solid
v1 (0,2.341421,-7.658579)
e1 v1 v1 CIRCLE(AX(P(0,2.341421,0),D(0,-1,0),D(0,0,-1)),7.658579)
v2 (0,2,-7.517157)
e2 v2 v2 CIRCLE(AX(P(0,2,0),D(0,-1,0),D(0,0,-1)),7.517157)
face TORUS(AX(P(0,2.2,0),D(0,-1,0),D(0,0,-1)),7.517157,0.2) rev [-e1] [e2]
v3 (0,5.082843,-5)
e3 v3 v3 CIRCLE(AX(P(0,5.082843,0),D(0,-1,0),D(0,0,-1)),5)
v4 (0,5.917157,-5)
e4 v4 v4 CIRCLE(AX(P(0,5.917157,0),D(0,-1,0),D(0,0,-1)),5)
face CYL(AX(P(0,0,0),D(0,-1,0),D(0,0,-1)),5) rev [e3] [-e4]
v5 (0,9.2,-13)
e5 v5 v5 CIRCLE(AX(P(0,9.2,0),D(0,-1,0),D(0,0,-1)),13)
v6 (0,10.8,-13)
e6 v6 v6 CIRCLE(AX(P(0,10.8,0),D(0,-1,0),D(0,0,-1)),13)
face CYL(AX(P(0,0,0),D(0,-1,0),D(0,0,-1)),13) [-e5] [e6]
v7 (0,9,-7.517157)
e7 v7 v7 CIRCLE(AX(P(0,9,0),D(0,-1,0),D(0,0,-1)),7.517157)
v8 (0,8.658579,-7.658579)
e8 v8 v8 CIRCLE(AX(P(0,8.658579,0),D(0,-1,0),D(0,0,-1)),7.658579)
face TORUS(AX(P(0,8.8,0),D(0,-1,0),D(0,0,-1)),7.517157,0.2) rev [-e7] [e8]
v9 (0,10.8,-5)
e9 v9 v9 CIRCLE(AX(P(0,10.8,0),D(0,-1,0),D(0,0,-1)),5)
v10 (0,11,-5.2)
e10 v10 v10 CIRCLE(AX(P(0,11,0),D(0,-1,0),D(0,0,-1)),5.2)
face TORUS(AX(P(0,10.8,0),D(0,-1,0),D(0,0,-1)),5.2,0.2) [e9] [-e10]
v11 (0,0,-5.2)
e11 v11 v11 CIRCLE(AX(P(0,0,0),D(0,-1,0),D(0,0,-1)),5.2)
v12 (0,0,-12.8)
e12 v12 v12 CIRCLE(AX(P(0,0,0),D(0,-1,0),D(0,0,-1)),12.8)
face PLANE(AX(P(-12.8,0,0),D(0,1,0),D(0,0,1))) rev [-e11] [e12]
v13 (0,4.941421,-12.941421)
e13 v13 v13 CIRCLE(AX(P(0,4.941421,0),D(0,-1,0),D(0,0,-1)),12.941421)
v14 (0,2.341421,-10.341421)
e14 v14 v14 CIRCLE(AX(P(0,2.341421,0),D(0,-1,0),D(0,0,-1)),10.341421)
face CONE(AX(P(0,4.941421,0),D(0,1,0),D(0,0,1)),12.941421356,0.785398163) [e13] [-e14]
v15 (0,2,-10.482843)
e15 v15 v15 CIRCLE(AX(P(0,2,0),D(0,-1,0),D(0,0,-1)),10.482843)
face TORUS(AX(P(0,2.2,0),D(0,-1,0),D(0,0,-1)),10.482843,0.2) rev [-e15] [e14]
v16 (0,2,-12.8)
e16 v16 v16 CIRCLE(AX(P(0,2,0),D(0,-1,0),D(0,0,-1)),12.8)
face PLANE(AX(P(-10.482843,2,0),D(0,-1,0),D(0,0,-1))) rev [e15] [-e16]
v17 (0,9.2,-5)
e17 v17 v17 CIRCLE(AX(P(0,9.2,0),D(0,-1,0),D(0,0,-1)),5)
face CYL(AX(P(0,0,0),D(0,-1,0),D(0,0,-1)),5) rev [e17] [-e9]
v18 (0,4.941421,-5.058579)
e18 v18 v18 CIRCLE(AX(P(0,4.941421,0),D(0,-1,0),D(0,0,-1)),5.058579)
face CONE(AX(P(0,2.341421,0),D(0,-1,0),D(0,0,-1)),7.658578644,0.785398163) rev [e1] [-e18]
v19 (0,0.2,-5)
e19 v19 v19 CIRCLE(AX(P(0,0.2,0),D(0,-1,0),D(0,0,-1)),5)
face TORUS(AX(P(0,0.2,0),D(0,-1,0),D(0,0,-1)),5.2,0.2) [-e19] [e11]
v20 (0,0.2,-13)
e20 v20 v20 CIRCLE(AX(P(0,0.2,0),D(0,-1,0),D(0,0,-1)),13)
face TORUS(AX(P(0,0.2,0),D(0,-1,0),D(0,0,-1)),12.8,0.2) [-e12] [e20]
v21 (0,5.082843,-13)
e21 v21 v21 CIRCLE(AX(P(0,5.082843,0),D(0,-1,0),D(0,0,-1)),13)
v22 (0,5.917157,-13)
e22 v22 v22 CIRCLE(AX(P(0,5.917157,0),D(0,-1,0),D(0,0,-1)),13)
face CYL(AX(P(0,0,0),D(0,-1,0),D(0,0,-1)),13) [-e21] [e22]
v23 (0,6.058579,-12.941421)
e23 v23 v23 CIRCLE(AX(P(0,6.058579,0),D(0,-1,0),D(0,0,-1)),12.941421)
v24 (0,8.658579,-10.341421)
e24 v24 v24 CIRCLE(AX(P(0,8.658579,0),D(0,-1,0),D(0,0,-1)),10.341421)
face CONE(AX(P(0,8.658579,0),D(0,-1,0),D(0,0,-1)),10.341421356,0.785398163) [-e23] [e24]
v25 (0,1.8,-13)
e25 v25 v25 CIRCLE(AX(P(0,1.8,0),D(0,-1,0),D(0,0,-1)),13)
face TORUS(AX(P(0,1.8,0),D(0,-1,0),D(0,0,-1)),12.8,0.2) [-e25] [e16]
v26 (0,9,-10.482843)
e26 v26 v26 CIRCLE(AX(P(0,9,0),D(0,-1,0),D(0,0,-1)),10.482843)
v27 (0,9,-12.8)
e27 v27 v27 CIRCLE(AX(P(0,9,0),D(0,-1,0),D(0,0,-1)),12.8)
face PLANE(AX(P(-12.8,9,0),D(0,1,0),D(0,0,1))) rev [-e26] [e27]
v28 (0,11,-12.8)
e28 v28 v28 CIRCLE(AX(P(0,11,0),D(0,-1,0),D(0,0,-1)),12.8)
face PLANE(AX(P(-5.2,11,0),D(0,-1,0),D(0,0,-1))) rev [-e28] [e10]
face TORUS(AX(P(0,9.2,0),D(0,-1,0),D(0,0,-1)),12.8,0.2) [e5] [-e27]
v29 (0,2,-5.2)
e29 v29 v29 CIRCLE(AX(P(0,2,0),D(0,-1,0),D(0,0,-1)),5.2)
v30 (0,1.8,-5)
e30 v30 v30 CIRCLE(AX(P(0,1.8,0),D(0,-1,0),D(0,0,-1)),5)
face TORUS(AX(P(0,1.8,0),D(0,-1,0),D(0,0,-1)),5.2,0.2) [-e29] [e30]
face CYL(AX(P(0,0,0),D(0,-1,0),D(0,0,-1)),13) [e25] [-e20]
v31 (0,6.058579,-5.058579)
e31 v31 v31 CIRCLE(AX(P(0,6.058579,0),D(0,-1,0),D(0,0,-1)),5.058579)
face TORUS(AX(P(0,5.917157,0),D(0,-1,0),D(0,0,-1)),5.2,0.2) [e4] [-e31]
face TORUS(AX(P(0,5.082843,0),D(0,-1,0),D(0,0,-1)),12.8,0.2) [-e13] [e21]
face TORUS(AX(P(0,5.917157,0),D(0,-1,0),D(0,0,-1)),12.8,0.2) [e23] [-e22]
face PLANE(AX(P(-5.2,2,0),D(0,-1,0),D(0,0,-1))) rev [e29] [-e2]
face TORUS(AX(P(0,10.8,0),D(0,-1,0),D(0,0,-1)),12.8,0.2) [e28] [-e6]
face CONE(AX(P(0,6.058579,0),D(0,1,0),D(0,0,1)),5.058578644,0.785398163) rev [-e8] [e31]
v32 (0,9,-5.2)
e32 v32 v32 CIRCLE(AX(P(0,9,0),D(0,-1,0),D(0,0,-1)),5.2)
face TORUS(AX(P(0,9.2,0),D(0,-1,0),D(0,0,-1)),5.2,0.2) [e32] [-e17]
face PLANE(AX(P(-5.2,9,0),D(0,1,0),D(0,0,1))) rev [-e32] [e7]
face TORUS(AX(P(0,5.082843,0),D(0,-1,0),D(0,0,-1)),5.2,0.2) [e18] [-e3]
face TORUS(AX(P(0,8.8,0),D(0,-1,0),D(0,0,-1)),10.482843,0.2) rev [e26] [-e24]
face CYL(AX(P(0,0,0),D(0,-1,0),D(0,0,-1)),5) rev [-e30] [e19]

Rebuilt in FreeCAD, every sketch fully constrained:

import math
import FreeCAD as App
import Part
import Sketcher

V = App.Vector

doc = App.newDocument("Part")
params = doc.addObject("Spreadsheet::Sheet", "Params")
for row, (alias, value) in enumerate([
    ("sketch1_radius", "0.2 mm"),
    ("sketch1_width", "7.6 mm"),
    ("sketch1_height", "1.6 mm"),
    ("revolution_angle", "360 deg"),
], start=1):
    params.set(f"A{row}", alias)
    params.set(f"B{row}", "=" + value)
    params.setAlias(f"B{row}", alias)

body = doc.addObject("PartDesign::Body", "Body")

sketch1 = body.newObject("Sketcher::SketchObject", "Sketch")
sketch1.AttachmentSupport = (doc.getObject("XY_Plane"), [""])
sketch1.MapMode = "FlatFace"
sketch1.addGeometry([
    Part.LineSegment(V(-5, 0.2, 0), V(-5, 1.8, 0)),
    Part.ArcOfCircle(Part.Circle(V(-5.2, 1.8, 0), V(0, 0, 1), 0.2), math.radians(0), math.radians(90)),
    Part.LineSegment(V(-5.2, 2, 0), V(-7.52, 2, 0)),
    Part.ArcOfCircle(Part.Circle(V(-7.52, 2.2, 0), V(0, 0, 1), 0.2), math.radians(135), math.radians(270)),
    Part.LineSegment(V(-7.66, 2.34, 0), V(-5.06, 4.94, 0)),
    Part.ArcOfCircle(Part.Circle(V(-5.2, 5.08, 0), V(0, 0, 1), 0.2), math.radians(-45), math.radians(0)),
    Part.LineSegment(V(-5, 5.08, 0), V(-5, 5.92, 0)),
    Part.ArcOfCircle(Part.Circle(V(-5.2, 5.92, 0), V(0, 0, 1), 0.2), math.radians(0), math.radians(45)),
    Part.LineSegment(V(-5.06, 6.06, 0), V(-7.66, 8.66, 0)),
    Part.ArcOfCircle(Part.Circle(V(-7.52, 8.8, 0), V(0, 0, 1), 0.2), math.radians(90), math.radians(225)),
    Part.LineSegment(V(-7.52, 9, 0), V(-5.2, 9, 0)),
    Part.ArcOfCircle(Part.Circle(V(-5.2, 9.2, 0), V(0, 0, 1), 0.2), math.radians(-90), math.radians(0)),
    Part.LineSegment(V(-5, 9.2, 0), V(-5, 10.8, 0)),
    Part.ArcOfCircle(Part.Circle(V(-5.2, 10.8, 0), V(0, 0, 1), 0.2), math.radians(0), math.radians(90)),
    Part.LineSegment(V(-5.2, 11, 0), V(-12.8, 11, 0)),
    Part.ArcOfCircle(Part.Circle(V(-12.8, 10.8, 0), V(0, 0, 1), 0.2), math.radians(90), math.radians(180)),
    Part.LineSegment(V(-13, 10.8, 0), V(-13, 9.2, 0)),
    Part.ArcOfCircle(Part.Circle(V(-12.8, 9.2, 0), V(0, 0, 1), 0.2), math.radians(-180), math.radians(-90)),
    Part.LineSegment(V(-12.8, 9, 0), V(-10.48, 9, 0)),
    Part.ArcOfCircle(Part.Circle(V(-10.48, 8.8, 0), V(0, 0, 1), 0.2), math.radians(-45), math.radians(90)),
    Part.LineSegment(V(-10.34, 8.66, 0), V(-12.94, 6.06, 0)),
    Part.ArcOfCircle(Part.Circle(V(-12.8, 5.92, 0), V(0, 0, 1), 0.2), math.radians(135), math.radians(180)),
    Part.LineSegment(V(-13, 5.92, 0), V(-13, 5.08, 0)),
    Part.ArcOfCircle(Part.Circle(V(-12.8, 5.08, 0), V(0, 0, 1), 0.2), math.radians(180), math.radians(225)),
    Part.LineSegment(V(-12.94, 4.94, 0), V(-10.34, 2.34, 0)),
    Part.ArcOfCircle(Part.Circle(V(-10.48, 2.2, 0), V(0, 0, 1), 0.2), math.radians(-90), math.radians(45)),
    Part.LineSegment(V(-10.48, 2, 0), V(-12.8, 2, 0)),
    Part.ArcOfCircle(Part.Circle(V(-12.8, 1.8, 0), V(0, 0, 1), 0.2), math.radians(90), math.radians(180)),
    Part.LineSegment(V(-13, 1.8, 0), V(-13, 0.2, 0)),
    Part.ArcOfCircle(Part.Circle(V(-12.8, 0.2, 0), V(0, 0, 1), 0.2), math.radians(-180), math.radians(-90)),
    Part.LineSegment(V(-12.8, 0, 0), V(-5.2, 0, 0)),
    Part.ArcOfCircle(Part.Circle(V(-5.2, 0.2, 0), V(0, 0, 1), 0.2), math.radians(-90), math.radians(0)),
], False)
sketch1.addConstraint([
    Sketcher.Constraint("Tangent", 0, 2, 1, 1),
    Sketcher.Constraint("Tangent", 1, 2, 2, 1),
    Sketcher.Constraint("Tangent", 2, 2, 3, 2),
    Sketcher.Constraint("Tangent", 3, 1, 4, 1),
    Sketcher.Constraint("Tangent", 4, 2, 5, 1),
    Sketcher.Constraint("Tangent", 5, 2, 6, 1),
    Sketcher.Constraint("Tangent", 6, 2, 7, 1),
    Sketcher.Constraint("Tangent", 7, 2, 8, 1),
    Sketcher.Constraint("Tangent", 8, 2, 9, 2),
    Sketcher.Constraint("Tangent", 9, 1, 10, 1),
    Sketcher.Constraint("Tangent", 10, 2, 11, 1),
    Sketcher.Constraint("Tangent", 11, 2, 12, 1),
    Sketcher.Constraint("Tangent", 12, 2, 13, 1),
    Sketcher.Constraint("Tangent", 13, 2, 14, 1),
    Sketcher.Constraint("Tangent", 14, 2, 15, 1),
    Sketcher.Constraint("Tangent", 15, 2, 16, 1),
    Sketcher.Constraint("Tangent", 16, 2, 17, 1),
    Sketcher.Constraint("Tangent", 17, 2, 18, 1),
    Sketcher.Constraint("Tangent", 18, 2, 19, 2),
    Sketcher.Constraint("Tangent", 19, 1, 20, 1),
    Sketcher.Constraint("Tangent", 20, 2, 21, 1),
    Sketcher.Constraint("Tangent", 21, 2, 22, 1),
    Sketcher.Constraint("Tangent", 22, 2, 23, 1),
    Sketcher.Constraint("Tangent", 23, 2, 24, 1),
    Sketcher.Constraint("Tangent", 24, 2, 25, 2),
    Sketcher.Constraint("Tangent", 25, 1, 26, 1),
    Sketcher.Constraint("Tangent", 26, 2, 27, 1),
    Sketcher.Constraint("Tangent", 27, 2, 28, 1),
    Sketcher.Constraint("Tangent", 28, 2, 29, 1),
    Sketcher.Constraint("Tangent", 29, 2, 30, 1),
    Sketcher.Constraint("Tangent", 30, 2, 31, 1),
    Sketcher.Constraint("Tangent", 31, 2, 0, 1),
    Sketcher.Constraint("Vertical", 0),
    Sketcher.Constraint("Horizontal", 2),
    Sketcher.Constraint("Vertical", 6),
    Sketcher.Constraint("Horizontal", 10),
    Sketcher.Constraint("Vertical", 12),
    Sketcher.Constraint("Horizontal", 14),
    Sketcher.Constraint("Vertical", 16),
    Sketcher.Constraint("Horizontal", 18),
    Sketcher.Constraint("Vertical", 22),
    Sketcher.Constraint("Horizontal", 26),
    Sketcher.Constraint("Vertical", 28),
    Sketcher.Constraint("Horizontal", 30),
    Sketcher.Constraint("Equal", 1, 3),
    Sketcher.Constraint("Equal", 3, 5),
    Sketcher.Constraint("Equal", 5, 7),
    Sketcher.Constraint("Equal", 7, 9),
    Sketcher.Constraint("Equal", 9, 11),
    Sketcher.Constraint("Equal", 11, 13),
    Sketcher.Constraint("Equal", 13, 15),
    Sketcher.Constraint("Equal", 15, 17),
    Sketcher.Constraint("Equal", 17, 19),
    Sketcher.Constraint("Equal", 19, 21),
    Sketcher.Constraint("Equal", 21, 23),
    Sketcher.Constraint("Equal", 23, 25),
    Sketcher.Constraint("Equal", 25, 27),
    Sketcher.Constraint("Equal", 27, 29),
    Sketcher.Constraint("Equal", 29, 31),
    Sketcher.Constraint("PointOnObject", 29, 2, -1),
    Sketcher.Constraint("Perpendicular", 4, 8),
    Sketcher.Constraint("Perpendicular", 8, 20),
    Sketcher.Constraint("Perpendicular", 20, 24),
    Sketcher.Constraint("Horizontal", 11, 3, 17, 3),
    Sketcher.Constraint("Horizontal", 7, 3, 21, 3),
    Sketcher.Constraint("Horizontal", 5, 3, 23, 3),
    Sketcher.Constraint("Horizontal", 3, 3, 25, 3),
    Sketcher.Constraint("Horizontal", 8, 2, 19, 1),
    Sketcher.Constraint("Vertical", 1, 3, 5, 3),
    Sketcher.Constraint("Vertical", 3, 3, 9, 3),
    Sketcher.Constraint("Vertical", 7, 3, 11, 3),
    Sketcher.Constraint("Vertical", 17, 3, 21, 3),
    Sketcher.Constraint("Vertical", 23, 3, 27, 3),
    Sketcher.Constraint("Equal", 0, 12),
    Sketcher.Constraint("Radius", 1, 0.2),
    Sketcher.Constraint("DistanceX", 14, 2, 14, 1, 7.6),
    Sketcher.Constraint("DistanceY", 0, 1, 0, 2, 1.6),
    Sketcher.Constraint("DistanceX", 0, 2, -1, 1, 5.0),
    Sketcher.Constraint("DistanceY", -1, 1, 9, 1, 9.0),
    Sketcher.Constraint("DistanceX", 8, 2, 7, 2, 2.6),
])
sketch1.setExpression("Constraints[74]", "Params.sketch1_radius")
sketch1.setExpression("Constraints[75]", "Params.sketch1_width")
sketch1.setExpression("Constraints[76]", "Params.sketch1_height")
revolution = body.newObject("PartDesign::Revolution", "Revolution")
revolution.Profile = sketch1
revolution.ReferenceAxis = (sketch1, ["V_Axis"])
revolution.setExpression("Angle", "Params.revolution_angle")

doc.recompute()
